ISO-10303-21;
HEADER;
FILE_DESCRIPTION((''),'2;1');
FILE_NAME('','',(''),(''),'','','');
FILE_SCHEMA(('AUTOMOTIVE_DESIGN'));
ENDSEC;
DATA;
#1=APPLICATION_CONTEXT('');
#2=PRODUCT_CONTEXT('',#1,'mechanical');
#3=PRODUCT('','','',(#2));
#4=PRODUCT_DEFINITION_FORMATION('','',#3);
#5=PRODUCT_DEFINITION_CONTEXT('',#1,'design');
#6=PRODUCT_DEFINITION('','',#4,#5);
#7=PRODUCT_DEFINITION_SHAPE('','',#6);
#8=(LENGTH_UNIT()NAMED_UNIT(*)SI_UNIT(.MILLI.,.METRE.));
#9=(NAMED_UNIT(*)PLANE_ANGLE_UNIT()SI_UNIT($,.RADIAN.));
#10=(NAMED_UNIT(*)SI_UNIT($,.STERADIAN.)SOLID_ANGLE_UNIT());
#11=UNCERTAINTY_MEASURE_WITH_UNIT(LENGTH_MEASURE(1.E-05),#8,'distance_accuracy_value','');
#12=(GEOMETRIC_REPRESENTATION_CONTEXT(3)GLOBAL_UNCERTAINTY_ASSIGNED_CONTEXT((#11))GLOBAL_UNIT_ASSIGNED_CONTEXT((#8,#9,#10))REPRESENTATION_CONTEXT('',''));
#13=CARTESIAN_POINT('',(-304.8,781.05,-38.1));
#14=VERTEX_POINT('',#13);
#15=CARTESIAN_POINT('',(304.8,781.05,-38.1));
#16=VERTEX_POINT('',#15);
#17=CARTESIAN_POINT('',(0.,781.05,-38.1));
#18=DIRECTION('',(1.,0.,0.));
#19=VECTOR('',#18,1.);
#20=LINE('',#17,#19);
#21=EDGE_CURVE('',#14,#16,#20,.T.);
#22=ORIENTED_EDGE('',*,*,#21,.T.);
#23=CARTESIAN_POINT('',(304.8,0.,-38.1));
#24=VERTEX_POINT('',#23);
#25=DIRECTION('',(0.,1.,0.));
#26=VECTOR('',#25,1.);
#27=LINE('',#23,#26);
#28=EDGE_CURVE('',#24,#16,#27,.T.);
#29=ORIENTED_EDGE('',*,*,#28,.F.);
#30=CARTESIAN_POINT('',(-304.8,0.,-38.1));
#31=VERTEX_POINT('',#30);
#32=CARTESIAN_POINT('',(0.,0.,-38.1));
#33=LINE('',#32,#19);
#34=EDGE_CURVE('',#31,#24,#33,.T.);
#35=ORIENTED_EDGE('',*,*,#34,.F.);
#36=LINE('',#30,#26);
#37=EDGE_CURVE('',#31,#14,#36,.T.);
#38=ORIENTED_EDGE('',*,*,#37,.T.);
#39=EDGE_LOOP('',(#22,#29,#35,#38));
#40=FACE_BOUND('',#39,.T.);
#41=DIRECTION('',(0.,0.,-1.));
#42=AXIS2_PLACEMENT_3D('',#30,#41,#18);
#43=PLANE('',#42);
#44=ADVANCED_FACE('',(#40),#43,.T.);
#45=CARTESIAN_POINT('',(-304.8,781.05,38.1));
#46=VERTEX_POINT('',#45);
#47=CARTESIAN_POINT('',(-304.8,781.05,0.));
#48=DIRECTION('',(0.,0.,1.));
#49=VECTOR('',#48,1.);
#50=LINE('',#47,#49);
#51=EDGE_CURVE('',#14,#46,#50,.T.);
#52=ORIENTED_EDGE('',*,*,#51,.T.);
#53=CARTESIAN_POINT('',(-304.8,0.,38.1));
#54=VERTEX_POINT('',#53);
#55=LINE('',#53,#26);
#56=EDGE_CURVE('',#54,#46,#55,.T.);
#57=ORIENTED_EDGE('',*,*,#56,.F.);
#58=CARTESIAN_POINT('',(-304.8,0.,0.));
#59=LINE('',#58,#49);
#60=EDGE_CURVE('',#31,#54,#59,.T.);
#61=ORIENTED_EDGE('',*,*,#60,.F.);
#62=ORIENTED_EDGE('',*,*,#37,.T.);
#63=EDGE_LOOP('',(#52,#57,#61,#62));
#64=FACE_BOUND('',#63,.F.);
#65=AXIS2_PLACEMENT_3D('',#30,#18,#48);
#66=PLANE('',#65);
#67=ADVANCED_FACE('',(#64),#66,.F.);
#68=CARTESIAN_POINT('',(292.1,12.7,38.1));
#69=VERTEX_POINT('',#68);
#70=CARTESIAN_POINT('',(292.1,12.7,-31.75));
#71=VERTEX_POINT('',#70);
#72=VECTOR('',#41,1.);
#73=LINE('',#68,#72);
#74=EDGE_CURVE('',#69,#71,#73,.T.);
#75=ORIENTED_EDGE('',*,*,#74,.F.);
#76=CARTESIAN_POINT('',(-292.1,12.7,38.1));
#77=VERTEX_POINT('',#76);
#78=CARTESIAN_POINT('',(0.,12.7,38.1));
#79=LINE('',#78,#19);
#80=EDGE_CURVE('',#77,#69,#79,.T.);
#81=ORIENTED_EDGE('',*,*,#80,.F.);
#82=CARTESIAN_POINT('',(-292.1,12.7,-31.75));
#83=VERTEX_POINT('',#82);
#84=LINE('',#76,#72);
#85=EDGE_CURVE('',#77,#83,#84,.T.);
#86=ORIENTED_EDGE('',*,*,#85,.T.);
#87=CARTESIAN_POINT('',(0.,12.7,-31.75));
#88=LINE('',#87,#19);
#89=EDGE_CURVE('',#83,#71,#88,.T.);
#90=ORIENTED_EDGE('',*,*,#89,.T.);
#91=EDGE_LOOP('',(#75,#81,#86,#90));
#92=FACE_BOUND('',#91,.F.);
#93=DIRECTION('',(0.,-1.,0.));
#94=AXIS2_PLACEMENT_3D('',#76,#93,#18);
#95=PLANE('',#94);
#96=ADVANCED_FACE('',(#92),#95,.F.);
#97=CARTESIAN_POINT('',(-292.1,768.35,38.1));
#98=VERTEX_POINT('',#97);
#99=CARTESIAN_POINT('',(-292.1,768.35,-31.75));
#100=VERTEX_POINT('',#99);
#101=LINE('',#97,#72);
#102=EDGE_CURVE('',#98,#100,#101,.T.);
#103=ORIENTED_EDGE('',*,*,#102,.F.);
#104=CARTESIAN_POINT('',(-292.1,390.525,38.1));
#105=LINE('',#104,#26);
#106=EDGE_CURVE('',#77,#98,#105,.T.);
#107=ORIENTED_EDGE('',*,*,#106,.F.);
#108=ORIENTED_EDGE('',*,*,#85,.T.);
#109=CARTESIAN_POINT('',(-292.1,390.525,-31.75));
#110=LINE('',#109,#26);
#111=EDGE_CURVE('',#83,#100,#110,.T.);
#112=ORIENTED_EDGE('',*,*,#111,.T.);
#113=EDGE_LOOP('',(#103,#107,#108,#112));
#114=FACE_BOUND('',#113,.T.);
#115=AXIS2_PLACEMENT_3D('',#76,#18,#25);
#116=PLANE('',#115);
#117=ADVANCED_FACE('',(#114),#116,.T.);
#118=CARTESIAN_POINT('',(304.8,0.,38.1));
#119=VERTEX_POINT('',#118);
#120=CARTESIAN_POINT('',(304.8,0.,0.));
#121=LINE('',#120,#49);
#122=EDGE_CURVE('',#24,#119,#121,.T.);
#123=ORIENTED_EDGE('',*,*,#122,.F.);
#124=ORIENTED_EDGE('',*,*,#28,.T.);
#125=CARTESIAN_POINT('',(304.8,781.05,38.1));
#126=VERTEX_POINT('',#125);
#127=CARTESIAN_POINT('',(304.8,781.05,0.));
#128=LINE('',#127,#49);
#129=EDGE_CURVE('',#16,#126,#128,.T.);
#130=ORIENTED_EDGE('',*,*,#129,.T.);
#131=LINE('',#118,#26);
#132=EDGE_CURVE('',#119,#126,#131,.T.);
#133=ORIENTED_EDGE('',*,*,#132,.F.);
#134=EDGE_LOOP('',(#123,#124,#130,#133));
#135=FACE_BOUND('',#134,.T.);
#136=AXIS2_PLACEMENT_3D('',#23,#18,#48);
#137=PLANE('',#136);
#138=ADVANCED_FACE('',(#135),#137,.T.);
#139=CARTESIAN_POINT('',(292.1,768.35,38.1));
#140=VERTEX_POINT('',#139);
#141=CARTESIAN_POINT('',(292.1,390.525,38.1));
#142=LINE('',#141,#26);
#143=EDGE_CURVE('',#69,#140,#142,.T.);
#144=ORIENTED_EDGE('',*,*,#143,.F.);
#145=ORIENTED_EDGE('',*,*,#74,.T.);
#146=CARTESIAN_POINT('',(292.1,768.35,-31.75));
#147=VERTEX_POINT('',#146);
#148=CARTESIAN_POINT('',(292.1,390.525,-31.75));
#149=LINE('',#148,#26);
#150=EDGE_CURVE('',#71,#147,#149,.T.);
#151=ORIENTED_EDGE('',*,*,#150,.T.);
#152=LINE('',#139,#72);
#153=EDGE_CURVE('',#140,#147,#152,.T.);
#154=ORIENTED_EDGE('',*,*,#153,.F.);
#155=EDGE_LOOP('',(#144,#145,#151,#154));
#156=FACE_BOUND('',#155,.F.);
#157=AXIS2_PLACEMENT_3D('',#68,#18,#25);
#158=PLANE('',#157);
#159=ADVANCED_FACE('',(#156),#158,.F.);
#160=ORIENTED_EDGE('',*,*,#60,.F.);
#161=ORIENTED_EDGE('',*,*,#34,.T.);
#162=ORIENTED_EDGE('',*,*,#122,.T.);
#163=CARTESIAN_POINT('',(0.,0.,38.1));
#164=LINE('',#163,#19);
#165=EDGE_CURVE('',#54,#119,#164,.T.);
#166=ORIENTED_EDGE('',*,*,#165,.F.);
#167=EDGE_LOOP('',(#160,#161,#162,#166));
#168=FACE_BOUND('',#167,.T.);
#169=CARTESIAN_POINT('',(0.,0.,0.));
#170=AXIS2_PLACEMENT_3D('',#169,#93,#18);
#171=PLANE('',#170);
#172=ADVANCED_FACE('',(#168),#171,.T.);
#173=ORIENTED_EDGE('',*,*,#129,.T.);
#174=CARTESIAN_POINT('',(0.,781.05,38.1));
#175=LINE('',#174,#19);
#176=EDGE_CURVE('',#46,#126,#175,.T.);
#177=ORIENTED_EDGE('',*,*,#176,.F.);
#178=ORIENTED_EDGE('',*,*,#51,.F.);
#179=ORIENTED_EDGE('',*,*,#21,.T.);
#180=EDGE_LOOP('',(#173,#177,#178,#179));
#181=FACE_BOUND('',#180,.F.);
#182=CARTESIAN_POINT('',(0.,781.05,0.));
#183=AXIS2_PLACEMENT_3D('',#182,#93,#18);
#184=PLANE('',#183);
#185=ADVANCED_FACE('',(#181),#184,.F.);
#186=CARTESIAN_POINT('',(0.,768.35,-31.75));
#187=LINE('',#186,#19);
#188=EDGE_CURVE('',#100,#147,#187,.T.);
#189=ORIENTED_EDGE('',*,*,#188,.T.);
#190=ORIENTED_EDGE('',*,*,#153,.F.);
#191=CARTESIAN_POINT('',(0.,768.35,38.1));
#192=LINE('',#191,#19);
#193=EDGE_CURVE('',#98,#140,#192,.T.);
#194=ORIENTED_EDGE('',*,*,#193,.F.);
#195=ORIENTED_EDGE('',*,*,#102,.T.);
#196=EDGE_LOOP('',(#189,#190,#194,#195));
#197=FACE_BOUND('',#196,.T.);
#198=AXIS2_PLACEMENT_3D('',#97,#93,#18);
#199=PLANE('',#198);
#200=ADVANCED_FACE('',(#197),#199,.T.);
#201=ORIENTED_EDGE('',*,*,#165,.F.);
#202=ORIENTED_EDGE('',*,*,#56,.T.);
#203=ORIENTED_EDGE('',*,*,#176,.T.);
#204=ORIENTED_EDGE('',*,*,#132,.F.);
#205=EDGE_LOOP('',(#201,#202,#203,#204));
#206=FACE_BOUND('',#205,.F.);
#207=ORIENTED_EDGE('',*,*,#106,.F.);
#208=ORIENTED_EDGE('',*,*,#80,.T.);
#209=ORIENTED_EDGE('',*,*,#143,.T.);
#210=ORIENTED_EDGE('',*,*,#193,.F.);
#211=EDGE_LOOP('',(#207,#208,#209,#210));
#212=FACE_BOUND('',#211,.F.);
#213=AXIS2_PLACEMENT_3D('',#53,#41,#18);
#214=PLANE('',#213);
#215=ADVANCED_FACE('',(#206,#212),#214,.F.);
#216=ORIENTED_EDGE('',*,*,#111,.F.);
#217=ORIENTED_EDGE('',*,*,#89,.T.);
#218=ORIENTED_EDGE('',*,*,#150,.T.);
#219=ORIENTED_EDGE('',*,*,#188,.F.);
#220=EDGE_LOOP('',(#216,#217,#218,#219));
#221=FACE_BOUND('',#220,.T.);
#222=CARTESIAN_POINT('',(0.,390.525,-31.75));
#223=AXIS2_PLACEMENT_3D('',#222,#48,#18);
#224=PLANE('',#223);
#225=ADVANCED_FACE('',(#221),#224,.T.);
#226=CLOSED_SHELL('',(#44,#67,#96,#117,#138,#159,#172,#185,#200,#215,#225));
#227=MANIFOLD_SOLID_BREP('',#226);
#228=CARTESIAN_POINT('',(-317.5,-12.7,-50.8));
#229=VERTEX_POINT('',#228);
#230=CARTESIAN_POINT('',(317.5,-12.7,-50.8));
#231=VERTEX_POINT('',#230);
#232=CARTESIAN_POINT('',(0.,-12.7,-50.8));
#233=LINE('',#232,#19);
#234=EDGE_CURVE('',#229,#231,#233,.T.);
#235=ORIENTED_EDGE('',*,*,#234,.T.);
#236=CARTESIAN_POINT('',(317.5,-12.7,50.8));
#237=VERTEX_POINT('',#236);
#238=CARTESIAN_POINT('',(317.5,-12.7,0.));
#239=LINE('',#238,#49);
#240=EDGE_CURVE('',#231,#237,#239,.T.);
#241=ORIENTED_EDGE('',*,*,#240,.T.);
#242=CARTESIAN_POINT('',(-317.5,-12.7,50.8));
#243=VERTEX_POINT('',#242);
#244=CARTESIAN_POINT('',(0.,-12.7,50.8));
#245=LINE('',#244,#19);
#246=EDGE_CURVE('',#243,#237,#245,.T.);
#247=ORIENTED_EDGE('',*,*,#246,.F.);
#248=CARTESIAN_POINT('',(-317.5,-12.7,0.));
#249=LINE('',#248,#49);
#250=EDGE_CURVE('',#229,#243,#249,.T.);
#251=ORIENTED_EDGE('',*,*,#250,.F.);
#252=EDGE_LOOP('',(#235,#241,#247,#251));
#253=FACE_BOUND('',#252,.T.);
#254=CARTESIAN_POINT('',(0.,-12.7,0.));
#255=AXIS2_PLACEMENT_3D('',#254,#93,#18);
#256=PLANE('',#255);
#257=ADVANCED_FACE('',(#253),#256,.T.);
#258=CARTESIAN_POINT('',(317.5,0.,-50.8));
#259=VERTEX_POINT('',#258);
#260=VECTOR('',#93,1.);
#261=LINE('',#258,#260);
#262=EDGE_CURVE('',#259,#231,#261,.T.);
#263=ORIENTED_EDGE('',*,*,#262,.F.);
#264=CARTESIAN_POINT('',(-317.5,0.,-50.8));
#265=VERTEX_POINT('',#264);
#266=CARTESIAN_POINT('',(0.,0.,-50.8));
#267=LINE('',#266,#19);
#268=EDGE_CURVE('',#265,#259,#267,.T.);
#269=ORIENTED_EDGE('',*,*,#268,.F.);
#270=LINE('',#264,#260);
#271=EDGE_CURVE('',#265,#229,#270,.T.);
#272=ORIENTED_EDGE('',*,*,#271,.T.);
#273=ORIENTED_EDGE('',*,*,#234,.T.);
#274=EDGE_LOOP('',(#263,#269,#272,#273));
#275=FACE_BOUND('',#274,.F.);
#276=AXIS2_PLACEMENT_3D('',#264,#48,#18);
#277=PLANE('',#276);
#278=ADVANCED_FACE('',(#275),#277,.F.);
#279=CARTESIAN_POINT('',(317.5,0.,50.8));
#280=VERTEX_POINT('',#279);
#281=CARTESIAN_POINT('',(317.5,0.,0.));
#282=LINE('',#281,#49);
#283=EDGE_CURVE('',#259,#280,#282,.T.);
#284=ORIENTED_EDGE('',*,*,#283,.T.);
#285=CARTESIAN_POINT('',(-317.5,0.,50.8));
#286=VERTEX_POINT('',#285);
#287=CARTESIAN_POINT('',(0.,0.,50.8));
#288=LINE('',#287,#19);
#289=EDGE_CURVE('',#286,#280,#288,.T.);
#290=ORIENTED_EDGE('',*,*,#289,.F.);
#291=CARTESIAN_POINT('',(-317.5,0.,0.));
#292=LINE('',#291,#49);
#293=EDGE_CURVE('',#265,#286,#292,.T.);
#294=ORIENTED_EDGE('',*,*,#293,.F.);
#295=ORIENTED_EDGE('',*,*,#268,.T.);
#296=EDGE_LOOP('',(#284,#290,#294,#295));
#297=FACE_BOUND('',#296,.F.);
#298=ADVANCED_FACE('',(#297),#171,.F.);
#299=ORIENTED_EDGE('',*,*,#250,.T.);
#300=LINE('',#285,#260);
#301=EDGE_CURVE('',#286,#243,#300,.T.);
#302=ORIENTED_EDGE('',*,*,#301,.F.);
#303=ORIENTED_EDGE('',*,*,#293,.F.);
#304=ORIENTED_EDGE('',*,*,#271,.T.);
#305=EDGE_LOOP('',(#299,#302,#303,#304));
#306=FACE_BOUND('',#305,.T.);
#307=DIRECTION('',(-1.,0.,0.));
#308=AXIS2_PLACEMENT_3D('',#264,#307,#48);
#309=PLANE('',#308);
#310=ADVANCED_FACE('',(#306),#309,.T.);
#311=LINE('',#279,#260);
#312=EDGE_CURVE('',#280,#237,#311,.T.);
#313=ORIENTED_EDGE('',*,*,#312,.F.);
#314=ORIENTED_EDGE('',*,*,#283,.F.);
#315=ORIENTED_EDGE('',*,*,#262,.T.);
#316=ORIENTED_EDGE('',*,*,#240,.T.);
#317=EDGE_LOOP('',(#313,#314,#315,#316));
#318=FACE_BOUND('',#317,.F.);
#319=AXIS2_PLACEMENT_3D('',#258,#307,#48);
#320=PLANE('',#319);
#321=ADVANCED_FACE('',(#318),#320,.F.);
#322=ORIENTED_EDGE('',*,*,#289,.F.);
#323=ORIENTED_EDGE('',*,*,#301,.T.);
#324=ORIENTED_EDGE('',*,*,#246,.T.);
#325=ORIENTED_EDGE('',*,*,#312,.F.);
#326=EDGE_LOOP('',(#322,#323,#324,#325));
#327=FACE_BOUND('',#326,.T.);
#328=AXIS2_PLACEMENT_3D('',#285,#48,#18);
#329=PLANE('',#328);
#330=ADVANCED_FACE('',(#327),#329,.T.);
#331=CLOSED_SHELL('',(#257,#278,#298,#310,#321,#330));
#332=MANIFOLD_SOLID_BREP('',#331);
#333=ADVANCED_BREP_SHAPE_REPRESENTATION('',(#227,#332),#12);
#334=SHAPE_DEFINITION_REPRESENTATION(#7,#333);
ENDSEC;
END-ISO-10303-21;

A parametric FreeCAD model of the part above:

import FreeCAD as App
import Part
import Sketcher
from FreeCAD import Vector
Q = App.Units.Quantity

doc = App.newDocument("Part")
params = doc.addObject("Spreadsheet::Sheet", "Params")
for row, (alias, value) in enumerate([
    ("sketch1_width", "25 in"),
    ("sketch1_height", "4 in"),
    ("pad1_length", "0.5 in"),
    ("sketch2_width", "24 in"),
    ("sketch2_height", "3 in"),
    ("pad2_length", "30.75 in"),
    ("sketch3_width", "23 in"),
    ("sketch3_height", "29.75 in"),
    ("pocket1_length", "2.75 in"),
], start=1):
    params.set(f"A{row}", alias)
    params.set(f"B{row}", "=" + value)
    params.setAlias(f"B{row}", alias)

body = doc.addObject("PartDesign::Body", "Body")

sketch1 = doc.addObject("Sketcher::SketchObject", "Sketch")
body.addObject(sketch1)
sketch1.AttachmentSupport = (doc.XZ_Plane, [""])
sketch1.MapMode = "FlatFace"
sketch1.addGeometry([
    Part.LineSegment(Vector(-318, 51, 0), Vector(-318, -51, 0)),
    Part.LineSegment(Vector(-318, -51, 0), Vector(318, -51, 0)),
    Part.LineSegment(Vector(318, -51, 0), Vector(318, 51, 0)),
    Part.LineSegment(Vector(318, 51, 0), Vector(-318, 51, 0)),
], False)
sketch1.addConstraint([
    Sketcher.Constraint("Coincident", 0, 2, 1, 1),
    Sketcher.Constraint("Coincident", 1, 2, 2, 1),
    Sketcher.Constraint("Coincident", 2, 2, 3, 1),
    Sketcher.Constraint("Coincident", 3, 2, 0, 1),
    Sketcher.Constraint("Vertical", 0),
    Sketcher.Constraint("Horizontal", 1),
    Sketcher.Constraint("Vertical", 2),
    Sketcher.Constraint("Horizontal", 3),
    Sketcher.Constraint("Symmetric", 0, 2, 2, 2, -1, 1),
    Sketcher.Constraint("DistanceX", 1, 1, 1, 2, Q("25 in")),
    Sketcher.Constraint("DistanceY", 0, 2, 0, 1, Q("4 in")),
])
sketch1.setExpression("Constraints[9]", "Params.sketch1_width")
sketch1.setExpression("Constraints[10]", "Params.sketch1_height")
pad1 = doc.addObject("PartDesign::Pad", "Pad")
body.addObject(pad1)
pad1.Profile = sketch1
pad1.setExpression("Length", "Params.pad1_length")
body2 = doc.addObject("PartDesign::Body", "Body001")

sketch2 = doc.addObject("Sketcher::SketchObject", "Sketch001")
body2.addObject(sketch2)
sketch2.AttachmentSupport = (doc.getObject("XZ_Plane001"), [""])
sketch2.MapMode = "FlatFace"
sketch2.addGeometry([
    Part.LineSegment(Vector(-305, 38, 0), Vector(-305, -38, 0)),
    Part.LineSegment(Vector(-305, -38, 0), Vector(305, -38, 0)),
    Part.LineSegment(Vector(305, -38, 0), Vector(305, 38, 0)),
    Part.LineSegment(Vector(305, 38, 0), Vector(-305, 38, 0)),
], False)
sketch2.addConstraint([
    Sketcher.Constraint("Coincident", 0, 2, 1, 1),
    Sketcher.Constraint("Coincident", 1, 2, 2, 1),
    Sketcher.Constraint("Coincident", 2, 2, 3, 1),
    Sketcher.Constraint("Coincident", 3, 2, 0, 1),
    Sketcher.Constraint("Vertical", 0),
    Sketcher.Constraint("Horizontal", 1),
    Sketcher.Constraint("Vertical", 2),
    Sketcher.Constraint("Horizontal", 3),
    Sketcher.Constraint("Symmetric", 0, 2, 2, 2, -1, 1),
    Sketcher.Constraint("DistanceX", 1, 1, 1, 2, Q("24 in")),
    Sketcher.Constraint("DistanceY", 0, 2, 0, 1, Q("3 in")),
])
sketch2.setExpression("Constraints[9]", "Params.sketch2_width")
sketch2.setExpression("Constraints[10]", "Params.sketch2_height")
pad2 = doc.addObject("PartDesign::Pad", "Pad001")
body2.addObject(pad2)
pad2.Profile = sketch2
pad2.setExpression("Length", "Params.pad2_length")
pad2.Reversed = True

sketch3 = doc.addObject("Sketcher::SketchObject", "Sketch002")
body2.addObject(sketch3)
sketch3.AttachmentSupport = (doc.getObject("XY_Plane001"), [""])
sketch3.MapMode = "FlatFace"
sketch3.AttachmentOffset = App.Placement(Vector(0, 0, 1.5 * 25.4), App.Rotation())
sketch3.addGeometry([
    Part.LineSegment(Vector(-292, 768, 0), Vector(-292, 13, 0)),
    Part.LineSegment(Vector(-292, 13, 0), Vector(292, 13, 0)),
    Part.LineSegment(Vector(292, 13, 0), Vector(292, 768, 0)),
    Part.LineSegment(Vector(292, 768, 0), Vector(-292, 768, 0)),
], False)
sketch3.addConstraint([
    Sketcher.Constraint("Coincident", 0, 2, 1, 1),
    Sketcher.Constraint("Coincident", 1, 2, 2, 1),
    Sketcher.Constraint("Coincident", 2, 2, 3, 1),
    Sketcher.Constraint("Coincident", 3, 2, 0, 1),
    Sketcher.Constraint("Vertical", 0),
    Sketcher.Constraint("Horizontal", 1),
    Sketcher.Constraint("Vertical", 2),
    Sketcher.Constraint("Horizontal", 3),
    Sketcher.Constraint("DistanceX", 1, 1, 1, 2, Q("23 in")),
    Sketcher.Constraint("DistanceY", 0, 2, 0, 1, Q("29.75 in")),
    Sketcher.Constraint("DistanceX", 0, 2, -1, 1, Q("11.5 in")),
    Sketcher.Constraint("DistanceY", -1, 1, 0, 2, Q("0.5 in")),
])
sketch3.setExpression("Constraints[8]", "Params.sketch3_width")
sketch3.setExpression("Constraints[9]", "Params.sketch3_height")
pocket1 = doc.addObject("PartDesign::Pocket", "Pocket")
body2.addObject(pocket1)
pocket1.Profile = sketch3
pocket1.setExpression("Length", "Params.pocket1_length")

doc.recompute()
